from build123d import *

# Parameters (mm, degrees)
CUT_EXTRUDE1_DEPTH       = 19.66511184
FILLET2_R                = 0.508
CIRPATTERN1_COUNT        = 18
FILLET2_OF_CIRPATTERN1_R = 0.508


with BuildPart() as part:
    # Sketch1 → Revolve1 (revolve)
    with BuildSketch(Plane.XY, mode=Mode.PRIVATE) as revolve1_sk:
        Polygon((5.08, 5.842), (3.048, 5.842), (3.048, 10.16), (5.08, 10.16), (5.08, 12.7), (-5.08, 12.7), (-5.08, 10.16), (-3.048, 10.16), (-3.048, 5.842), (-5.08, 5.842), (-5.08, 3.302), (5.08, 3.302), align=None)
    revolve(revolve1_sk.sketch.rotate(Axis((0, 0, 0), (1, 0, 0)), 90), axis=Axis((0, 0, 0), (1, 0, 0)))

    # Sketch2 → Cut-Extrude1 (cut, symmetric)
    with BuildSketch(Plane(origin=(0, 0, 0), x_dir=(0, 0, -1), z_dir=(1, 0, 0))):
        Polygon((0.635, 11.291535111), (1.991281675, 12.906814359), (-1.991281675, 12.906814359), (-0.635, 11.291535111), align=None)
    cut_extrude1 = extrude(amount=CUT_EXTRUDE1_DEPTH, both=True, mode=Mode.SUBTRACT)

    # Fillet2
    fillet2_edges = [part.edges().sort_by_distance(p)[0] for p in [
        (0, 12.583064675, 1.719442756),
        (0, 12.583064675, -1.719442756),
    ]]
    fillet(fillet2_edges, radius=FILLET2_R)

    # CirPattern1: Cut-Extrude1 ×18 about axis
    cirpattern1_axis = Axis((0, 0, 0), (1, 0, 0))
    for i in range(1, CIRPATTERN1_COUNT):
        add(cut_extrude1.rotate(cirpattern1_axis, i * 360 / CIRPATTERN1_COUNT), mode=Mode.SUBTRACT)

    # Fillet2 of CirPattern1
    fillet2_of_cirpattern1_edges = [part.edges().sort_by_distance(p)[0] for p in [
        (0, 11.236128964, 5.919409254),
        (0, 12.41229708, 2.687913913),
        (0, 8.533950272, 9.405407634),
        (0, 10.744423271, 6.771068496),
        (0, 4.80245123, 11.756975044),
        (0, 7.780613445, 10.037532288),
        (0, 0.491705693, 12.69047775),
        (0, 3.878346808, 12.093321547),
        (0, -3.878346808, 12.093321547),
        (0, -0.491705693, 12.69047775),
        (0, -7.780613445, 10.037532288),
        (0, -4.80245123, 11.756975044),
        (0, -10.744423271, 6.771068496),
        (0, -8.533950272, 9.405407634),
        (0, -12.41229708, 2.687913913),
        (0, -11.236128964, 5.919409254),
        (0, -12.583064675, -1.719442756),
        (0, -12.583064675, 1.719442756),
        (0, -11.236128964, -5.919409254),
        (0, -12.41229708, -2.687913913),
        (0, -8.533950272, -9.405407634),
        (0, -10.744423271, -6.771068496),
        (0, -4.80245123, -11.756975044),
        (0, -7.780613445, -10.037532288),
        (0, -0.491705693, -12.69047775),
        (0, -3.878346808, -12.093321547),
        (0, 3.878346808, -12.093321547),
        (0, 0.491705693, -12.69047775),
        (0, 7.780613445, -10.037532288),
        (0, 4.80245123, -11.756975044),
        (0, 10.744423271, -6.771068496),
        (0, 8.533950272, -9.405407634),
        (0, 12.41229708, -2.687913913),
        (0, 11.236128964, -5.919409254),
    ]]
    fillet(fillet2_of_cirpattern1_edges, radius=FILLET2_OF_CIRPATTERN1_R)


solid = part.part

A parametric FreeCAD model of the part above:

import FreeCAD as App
import Part
import Sketcher

V = App.Vector
Q = App.Units.Quantity


def edges_at(feature, points):
    """Names of the edges that pass closest to the given points."""
    edges = feature.Shape.Edges
    near = lambda p: min(range(len(edges)), key=lambda i: edges[i].distToShape(Part.Vertex(*p))[0])
    return sorted({f"Edge{near(p) + 1}" for p in points})


def add_polygon(sketch, points):
    """Adds a closed chain of lines whose ends are joined by coincident constraints."""
    first, n = sketch.GeometryCount, len(points)
    for a, b in zip(points, points[1:] + points[:1]):
        sketch.addGeometry(Part.LineSegment(App.Vector(*a, 0), App.Vector(*b, 0)), False)
    for i in range(n):
        sketch.addConstraint(Sketcher.Constraint("Coincident", first + i, 2, first + (i + 1) % n, 1))

doc = App.newDocument("Part")
body = doc.addObject("PartDesign::Body", "Body")

# Sketch on XY plane
sketch1 = body.newObject("Sketcher::SketchObject", "Sketch")
sketch1.AttachmentSupport = (doc.getObject("XY_Plane"), [""])
sketch1.MapMode = "FlatFace"
add_polygon(sketch1, [(5.1, 5.8), (3, 5.8), (3, 10.2), (5.1, 10.2), (5.1, 12.7), (-5.1, 12.7), (-5.1, 10.2), (-3, 10.2), (-3, 5.8), (-5.1, 5.8), (-5.1, 3.3), (5.1, 3.3)])  # lines 0-11
sketch1.addConstraint([
    Sketcher.Constraint("Horizontal", 0),
    Sketcher.Constraint("Vertical", 1),
    Sketcher.Constraint("Horizontal", 2),
    Sketcher.Constraint("Vertical", 3),
    Sketcher.Constraint("Horizontal", 4),
    Sketcher.Constraint("Vertical", 5),
    Sketcher.Constraint("Horizontal", 6),
    Sketcher.Constraint("Vertical", 7),
    Sketcher.Constraint("Horizontal", 8),
    Sketcher.Constraint("Vertical", 9),
    Sketcher.Constraint("Horizontal", 10),
    Sketcher.Constraint("Vertical", 11),
    Sketcher.Constraint("Symmetric", 2, 2, 5, 2, -2),
    Sketcher.Constraint("Symmetric", 0, 2, 7, 2, -2),
    Sketcher.Constraint("Vertical", 5, 2, 8, 2),
    Sketcher.Constraint("Vertical", 3, 2, 10, 2),
    Sketcher.Constraint("Equal", 5, 9),
    Sketcher.Constraint("DistanceX", 4, 2, 4, 1, Q("0.4 in")),
    Sketcher.Constraint("DistanceY", 3, 1, 3, 2, Q("0.1 in")),
    Sketcher.Constraint("DistanceX", 0, 2, 0, 1, Q("0.08 in")),
    Sketcher.Constraint("DistanceY", 1, 1, 1, 2, Q("0.17 in")),
    Sketcher.Constraint("DistanceY", -1, 1, 1, 2, Q("0.4 in")),
])
revolution = body.newObject("PartDesign::Revolution", "Revolution")
revolution.Profile = sketch1
revolution.ReferenceAxis = (sketch1, ["H_Axis"])
revolution.Angle = 360

# Sketch on YZ plane
sketch2 = body.newObject("Sketcher::SketchObject", "Sketch001")
sketch2.AttachmentSupport = (doc.getObject("YZ_Plane"), [""])
sketch2.MapMode = "FlatFace"
add_polygon(sketch2, [(11.3, -0.6), (12.9, -2), (12.9, 2), (11.3, 0.6)])  # lines 0-3
sketch2.addConstraint([
    Sketcher.Constraint("Vertical", 1),
    Sketcher.Constraint("Vertical", 3),
    Sketcher.Constraint("Equal", 0, 2),
    Sketcher.Constraint("DistanceY", 3, 2, 3, 1, Q("0.05 in")),
    Sketcher.Constraint("DistanceY", -1, 1, 2, 2, Q("0.025 in")),
    Sketcher.Constraint("DistanceY", 1, 1, 1, 2, 3.982563),
    Sketcher.Constraint("DistanceX", 2, 2, 1, 2, 1.615279),
    Sketcher.Constraint("DistanceX", -1, 1, 0, 2, 12.906814),
])
pocket1 = body.newObject("PartDesign::Pocket", "Pocket")
pocket1.Profile = sketch2
pocket1.Length = 39.330224
pocket1.Midplane = True
doc.recompute()

fillet = body.newObject("PartDesign::Fillet", "Fillet")
fillet.Base = (pocket1, edges_at(pocket1, [(0, 12.583, 1.719), (0, 12.583, -1.719)]))
fillet.Radius = Q("0.02 in")
doc.recompute()

polarpattern = body.newObject("PartDesign::PolarPattern", "PolarPattern")
polarpattern.Originals = [pocket1]
polarpattern.Axis = (doc.getObject("X_Axis"), [""])
polarpattern.Angle = 360
polarpattern.Occurrences = 18
body.Tip = polarpattern
doc.recompute()

fillet2 = body.newObject("PartDesign::Fillet", "Fillet001")
fillet2.Base = (polarpattern, edges_at(polarpattern, [
    (0, 11.236, 5.919),
    (0, 12.412, 2.688),
    (0, 8.534, 9.405),
    (0, 10.744, 6.771),
    (0, 4.802, 11.757),
    (0, 7.781, 10.038),
    (0, 0.492, 12.69),
    (0, 3.878, 12.093),
    (0, -3.878, 12.093),
    (0, -0.492, 12.69),
    (0, -7.781, 10.038),
    (0, -4.802, 11.757),
    (0, -10.744, 6.771),
    (0, -8.534, 9.405),
    (0, -12.412, 2.688),
    (0, -11.236, 5.919),
    (0, -12.583, -1.719),
    (0, -12.583, 1.719),
    (0, -11.236, -5.919),
    (0, -12.412, -2.688),
    (0, -8.534, -9.405),
    (0, -10.744, -6.771),
    (0, -4.802, -11.757),
    (0, -7.781, -10.038),
    (0, -0.492, -12.69),
    (0, -3.878, -12.093),
    (0, 3.878, -12.093),
    (0, 0.492, -12.69),
    (0, 7.781, -10.038),
    (0, 4.802, -11.757),
    (0, 10.744, -6.771),
    (0, 8.534, -9.405),
    (0, 12.412, -2.688),
    (0, 11.236, -5.919),
]))
fillet2.Radius = Q("0.02 in")

doc.recompute()
